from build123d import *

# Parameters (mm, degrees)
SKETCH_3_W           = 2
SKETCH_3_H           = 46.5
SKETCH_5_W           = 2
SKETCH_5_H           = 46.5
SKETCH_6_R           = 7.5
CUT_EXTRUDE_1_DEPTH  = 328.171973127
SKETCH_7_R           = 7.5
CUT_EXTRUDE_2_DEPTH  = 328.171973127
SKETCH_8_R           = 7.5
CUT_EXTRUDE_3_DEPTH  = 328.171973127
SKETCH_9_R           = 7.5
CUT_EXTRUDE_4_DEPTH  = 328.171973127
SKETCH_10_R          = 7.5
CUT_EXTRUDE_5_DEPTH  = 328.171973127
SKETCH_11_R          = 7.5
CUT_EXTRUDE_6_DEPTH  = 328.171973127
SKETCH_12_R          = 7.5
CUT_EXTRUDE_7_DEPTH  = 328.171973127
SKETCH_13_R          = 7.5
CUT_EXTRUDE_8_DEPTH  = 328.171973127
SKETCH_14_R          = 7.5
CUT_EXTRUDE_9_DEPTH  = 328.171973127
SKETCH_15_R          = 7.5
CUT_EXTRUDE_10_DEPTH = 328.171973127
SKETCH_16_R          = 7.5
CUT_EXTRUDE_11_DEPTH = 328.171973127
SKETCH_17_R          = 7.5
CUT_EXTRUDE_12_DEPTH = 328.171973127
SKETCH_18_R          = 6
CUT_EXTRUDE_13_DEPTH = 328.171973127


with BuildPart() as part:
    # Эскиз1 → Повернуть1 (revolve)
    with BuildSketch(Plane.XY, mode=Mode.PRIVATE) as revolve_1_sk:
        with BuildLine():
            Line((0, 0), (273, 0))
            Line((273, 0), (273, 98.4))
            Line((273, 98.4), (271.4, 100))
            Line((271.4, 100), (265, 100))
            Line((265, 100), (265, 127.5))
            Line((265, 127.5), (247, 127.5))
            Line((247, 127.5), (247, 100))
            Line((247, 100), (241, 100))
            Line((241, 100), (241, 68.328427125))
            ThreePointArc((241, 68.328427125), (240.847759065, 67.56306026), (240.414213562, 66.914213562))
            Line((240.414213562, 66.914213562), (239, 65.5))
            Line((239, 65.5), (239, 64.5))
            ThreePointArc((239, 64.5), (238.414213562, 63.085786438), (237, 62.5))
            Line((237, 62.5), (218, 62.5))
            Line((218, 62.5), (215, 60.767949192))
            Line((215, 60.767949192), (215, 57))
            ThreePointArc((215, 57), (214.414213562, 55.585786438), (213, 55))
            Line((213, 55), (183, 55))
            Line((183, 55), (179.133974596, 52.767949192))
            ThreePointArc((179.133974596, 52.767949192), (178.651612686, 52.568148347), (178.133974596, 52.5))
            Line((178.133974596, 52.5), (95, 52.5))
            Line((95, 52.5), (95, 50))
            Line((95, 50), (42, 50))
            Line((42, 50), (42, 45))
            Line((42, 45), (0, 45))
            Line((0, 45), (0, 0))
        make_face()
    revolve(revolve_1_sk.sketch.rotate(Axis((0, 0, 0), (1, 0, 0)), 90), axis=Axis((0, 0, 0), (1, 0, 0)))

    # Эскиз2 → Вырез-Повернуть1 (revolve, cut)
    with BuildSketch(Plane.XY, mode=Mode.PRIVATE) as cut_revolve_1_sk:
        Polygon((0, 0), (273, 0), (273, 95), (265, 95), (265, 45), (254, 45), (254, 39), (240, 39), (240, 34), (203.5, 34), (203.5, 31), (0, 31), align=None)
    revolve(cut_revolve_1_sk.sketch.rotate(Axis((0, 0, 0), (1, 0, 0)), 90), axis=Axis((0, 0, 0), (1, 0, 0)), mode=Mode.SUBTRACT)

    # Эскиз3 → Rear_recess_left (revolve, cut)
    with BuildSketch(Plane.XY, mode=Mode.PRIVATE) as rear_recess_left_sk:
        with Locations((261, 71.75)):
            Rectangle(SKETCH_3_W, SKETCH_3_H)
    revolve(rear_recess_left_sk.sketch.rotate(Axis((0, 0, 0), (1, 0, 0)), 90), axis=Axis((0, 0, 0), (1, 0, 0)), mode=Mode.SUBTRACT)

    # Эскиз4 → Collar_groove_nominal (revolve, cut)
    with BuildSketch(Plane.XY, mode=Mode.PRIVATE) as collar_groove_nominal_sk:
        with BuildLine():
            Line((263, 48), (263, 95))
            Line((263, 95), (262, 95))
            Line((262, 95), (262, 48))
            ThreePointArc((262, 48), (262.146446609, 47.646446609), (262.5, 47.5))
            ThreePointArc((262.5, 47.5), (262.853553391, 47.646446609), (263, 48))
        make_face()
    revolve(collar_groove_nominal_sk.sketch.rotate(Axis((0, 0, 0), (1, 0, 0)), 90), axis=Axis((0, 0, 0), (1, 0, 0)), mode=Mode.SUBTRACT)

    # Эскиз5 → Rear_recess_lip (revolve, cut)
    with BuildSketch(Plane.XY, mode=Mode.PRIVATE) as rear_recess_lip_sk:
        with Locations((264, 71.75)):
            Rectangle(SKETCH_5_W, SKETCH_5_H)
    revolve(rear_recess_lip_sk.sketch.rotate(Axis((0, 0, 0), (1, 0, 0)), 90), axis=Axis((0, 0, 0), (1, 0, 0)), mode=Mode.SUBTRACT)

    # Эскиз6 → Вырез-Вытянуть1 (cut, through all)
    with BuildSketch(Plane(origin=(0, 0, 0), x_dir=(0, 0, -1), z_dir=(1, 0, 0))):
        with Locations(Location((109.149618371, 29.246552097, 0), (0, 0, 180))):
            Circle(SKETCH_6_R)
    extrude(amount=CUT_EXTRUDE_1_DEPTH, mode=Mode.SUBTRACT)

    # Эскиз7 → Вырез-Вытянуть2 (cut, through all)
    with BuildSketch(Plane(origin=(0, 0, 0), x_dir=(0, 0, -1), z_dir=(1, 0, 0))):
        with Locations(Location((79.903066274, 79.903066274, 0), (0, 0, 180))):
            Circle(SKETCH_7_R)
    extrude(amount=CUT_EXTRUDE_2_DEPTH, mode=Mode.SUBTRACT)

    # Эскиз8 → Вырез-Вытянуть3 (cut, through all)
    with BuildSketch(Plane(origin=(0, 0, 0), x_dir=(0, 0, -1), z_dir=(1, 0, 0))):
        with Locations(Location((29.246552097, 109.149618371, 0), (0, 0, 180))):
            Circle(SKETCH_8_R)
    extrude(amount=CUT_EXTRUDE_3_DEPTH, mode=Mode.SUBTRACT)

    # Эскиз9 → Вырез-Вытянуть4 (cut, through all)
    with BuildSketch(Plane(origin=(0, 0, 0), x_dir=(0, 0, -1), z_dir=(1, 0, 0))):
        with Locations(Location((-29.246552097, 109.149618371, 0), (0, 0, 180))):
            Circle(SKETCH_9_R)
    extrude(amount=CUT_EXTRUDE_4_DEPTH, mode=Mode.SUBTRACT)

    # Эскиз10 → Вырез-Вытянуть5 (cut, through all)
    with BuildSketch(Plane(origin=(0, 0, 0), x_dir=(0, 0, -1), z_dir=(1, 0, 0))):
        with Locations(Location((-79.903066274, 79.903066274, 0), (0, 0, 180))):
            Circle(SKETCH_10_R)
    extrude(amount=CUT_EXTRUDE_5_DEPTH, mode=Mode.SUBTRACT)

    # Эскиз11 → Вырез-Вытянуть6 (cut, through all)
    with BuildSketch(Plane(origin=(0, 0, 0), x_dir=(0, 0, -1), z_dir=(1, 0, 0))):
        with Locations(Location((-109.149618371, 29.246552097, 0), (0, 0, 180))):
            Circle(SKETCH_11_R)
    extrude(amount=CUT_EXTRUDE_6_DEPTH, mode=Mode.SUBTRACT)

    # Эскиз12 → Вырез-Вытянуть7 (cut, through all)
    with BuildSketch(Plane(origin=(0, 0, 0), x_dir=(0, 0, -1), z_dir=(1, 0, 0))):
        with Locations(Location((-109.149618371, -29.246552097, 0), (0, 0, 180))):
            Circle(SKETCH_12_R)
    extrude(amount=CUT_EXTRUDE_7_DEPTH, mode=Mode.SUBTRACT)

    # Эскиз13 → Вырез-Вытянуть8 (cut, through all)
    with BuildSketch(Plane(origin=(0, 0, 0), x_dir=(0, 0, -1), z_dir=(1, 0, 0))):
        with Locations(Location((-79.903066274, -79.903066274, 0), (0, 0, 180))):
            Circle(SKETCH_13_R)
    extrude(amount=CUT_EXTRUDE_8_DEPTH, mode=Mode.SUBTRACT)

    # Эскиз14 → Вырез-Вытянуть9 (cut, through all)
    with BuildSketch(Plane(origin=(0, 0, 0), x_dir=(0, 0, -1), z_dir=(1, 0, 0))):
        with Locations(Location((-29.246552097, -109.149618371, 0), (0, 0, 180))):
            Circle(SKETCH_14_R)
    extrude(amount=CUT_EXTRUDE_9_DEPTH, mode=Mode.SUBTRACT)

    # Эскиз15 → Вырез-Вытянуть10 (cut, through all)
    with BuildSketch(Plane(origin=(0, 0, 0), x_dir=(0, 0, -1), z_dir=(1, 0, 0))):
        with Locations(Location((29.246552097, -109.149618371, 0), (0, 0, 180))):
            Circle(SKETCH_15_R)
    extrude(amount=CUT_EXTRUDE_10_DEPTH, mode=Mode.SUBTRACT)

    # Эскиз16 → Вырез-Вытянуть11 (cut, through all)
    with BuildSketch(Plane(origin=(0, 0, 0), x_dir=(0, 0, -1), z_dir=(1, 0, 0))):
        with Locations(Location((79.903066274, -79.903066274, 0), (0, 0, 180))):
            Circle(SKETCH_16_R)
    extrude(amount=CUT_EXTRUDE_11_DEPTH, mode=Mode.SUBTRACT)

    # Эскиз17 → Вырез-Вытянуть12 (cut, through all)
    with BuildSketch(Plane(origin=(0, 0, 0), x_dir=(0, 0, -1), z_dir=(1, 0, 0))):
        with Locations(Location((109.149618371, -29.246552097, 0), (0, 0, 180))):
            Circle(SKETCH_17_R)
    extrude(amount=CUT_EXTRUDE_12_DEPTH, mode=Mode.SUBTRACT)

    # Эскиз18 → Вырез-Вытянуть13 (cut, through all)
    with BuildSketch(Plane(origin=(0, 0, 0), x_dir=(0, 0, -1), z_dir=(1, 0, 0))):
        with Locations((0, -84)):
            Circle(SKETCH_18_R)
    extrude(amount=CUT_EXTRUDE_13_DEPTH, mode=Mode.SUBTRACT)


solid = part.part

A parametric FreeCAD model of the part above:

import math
import FreeCAD as App
import Part
import Sketcher

V = App.Vector
Q = App.Units.Quantity


def add_polygon(sketch, points):
    """Adds a closed chain of lines whose ends are joined by coincident constraints."""
    first, n = sketch.GeometryCount, len(points)
    for a, b in zip(points, points[1:] + points[:1]):
        sketch.addGeometry(Part.LineSegment(App.Vector(*a, 0), App.Vector(*b, 0)), False)
    for i in range(n):
        sketch.addConstraint(Sketcher.Constraint("Coincident", first + i, 2, first + (i + 1) % n, 1))

doc = App.newDocument("Part")
params = doc.addObject("Spreadsheet::Sheet", "Params")
for row, (alias, value) in enumerate([
    ("sketch1_radius", "2 mm"),
    ("sketch1_width", "273 mm"),
    ("sketch1_width2", "18 mm"),
    ("sketch1_width3", "6 mm"),
    ("sketch1_width4", "19 mm"),
    ("revolution_angle", "360 deg"),
    ("sketch2_width", "273 mm"),
    ("sketch2_width2", "8 mm"),
    ("sketch2_width3", "11 mm"),
    ("sketch2_width4", "14 mm"),
    ("sketch2_height", "95 mm"),
    ("groove_angle", "360 deg"),
    ("sketch3_width", "2 mm"),
    ("sketch3_height", "46.5 mm"),
    ("groove2_angle", "360 deg"),
    ("sketch4_radius", "0.5 mm"),
    ("sketch4_height", "47 mm"),
    ("groove3_angle", "360 deg"),
    ("sketch5_width", "2 mm"),
    ("sketch5_height", "46.5 mm"),
    ("groove4_angle", "360 deg"),
    ("sketch6_diameter", "15 mm"),
    ("sketch7_diameter", "15 mm"),
    ("sketch8_diameter", "15 mm"),
    ("sketch9_diameter", "15 mm"),
    ("sketch10_diameter", "15 mm"),
    ("sketch11_diameter", "15 mm"),
    ("sketch12_diameter", "15 mm"),
    ("sketch13_diameter", "15 mm"),
    ("sketch14_diameter", "15 mm"),
    ("sketch15_diameter", "15 mm"),
    ("sketch16_diameter", "15 mm"),
    ("sketch17_diameter", "15 mm"),
    ("sketch18_diameter", "12 mm"),
], start=1):
    params.set(f"A{row}", alias)
    params.set(f"B{row}", "=" + value)
    params.setAlias(f"B{row}", alias)

body = doc.addObject("PartDesign::Body", "Body")

# Sketch on XY plane
sketch1 = body.newObject("Sketcher::SketchObject", "Sketch")
sketch1.AttachmentSupport = (doc.getObject("XY_Plane"), [""])
sketch1.MapMode = "FlatFace"
sketch1.addGeometry(Part.LineSegment(V(0, 0, 0), V(273, 0, 0)), False)
sketch1.addGeometry(Part.LineSegment(V(273, 0, 0), V(273, 98.4, 0)), False)
sketch1.addGeometry(Part.LineSegment(V(273, 98.4, 0), V(271.4, 100, 0)), False)
sketch1.addGeometry(Part.LineSegment(V(271.4, 100, 0), V(265, 100, 0)), False)
sketch1.addGeometry(Part.LineSegment(V(265, 100, 0), V(265, 127.5, 0)), False)
sketch1.addGeometry(Part.LineSegment(V(265, 127.5, 0), V(247, 127.5, 0)), False)
sketch1.addGeometry(Part.LineSegment(V(247, 127.5, 0), V(247, 100, 0)), False)
sketch1.addGeometry(Part.LineSegment(V(247, 100, 0), V(241, 100, 0)), False)
sketch1.addGeometry(Part.LineSegment(V(241, 100, 0), V(241, 68.3, 0)), False)
sketch1.addGeometry(Part.ArcOfCircle(Part.Circle(V(239, 68.3, 0), V(0, 0, 1), 2), math.radians(-45), math.radians(0)), False)
sketch1.addGeometry(Part.LineSegment(V(240.4, 66.9, 0), V(239, 65.5, 0)), False)
sketch1.addGeometry(Part.LineSegment(V(239, 65.5, 0), V(239, 64.5, 0)), False)
sketch1.addGeometry(Part.ArcOfCircle(Part.Circle(V(237, 64.5, 0), V(0, 0, 1), 2), math.radians(-90), math.radians(0)), False)
sketch1.addGeometry(Part.LineSegment(V(237, 62.5, 0), V(218, 62.5, 0)), False)
sketch1.addGeometry(Part.LineSegment(V(218, 62.5, 0), V(215, 60.8, 0)), False)
sketch1.addGeometry(Part.LineSegment(V(215, 60.8, 0), V(215, 57, 0)), False)
sketch1.addGeometry(Part.ArcOfCircle(Part.Circle(V(213, 57, 0), V(0, 0, 1), 2), math.radians(-90), math.radians(0)), False)
sketch1.addGeometry(Part.LineSegment(V(213, 55, 0), V(183, 55, 0)), False)
sketch1.addGeometry(Part.LineSegment(V(183, 55, 0), V(179.1, 52.8, 0)), False)
sketch1.addGeometry(Part.ArcOfCircle(Part.Circle(V(178.1, 54.5, 0), V(0, 0, 1), 2), math.radians(-90), math.radians(-60)), False)
sketch1.addGeometry(Part.LineSegment(V(178.1, 52.5, 0), V(95, 52.5, 0)), False)
sketch1.addGeometry(Part.LineSegment(V(95, 52.5, 0), V(95, 50, 0)), False)
sketch1.addGeometry(Part.LineSegment(V(95, 50, 0), V(42, 50, 0)), False)
sketch1.addGeometry(Part.LineSegment(V(42, 50, 0), V(42, 45, 0)), False)
sketch1.addGeometry(Part.LineSegment(V(42, 45, 0), V(0, 45, 0)), False)
sketch1.addGeometry(Part.LineSegment(V(0, 45, 0), V(0, 0, 0)), False)
sketch1.addConstraint(Sketcher.Constraint("Coincident", 0, 2, 1, 1))
sketch1.addConstraint(Sketcher.Constraint("Coincident", 1, 2, 2, 1))
sketch1.addConstraint(Sketcher.Constraint("Coincident", 2, 2, 3, 1))
sketch1.addConstraint(Sketcher.Constraint("Coincident", 3, 2, 4, 1))
sketch1.addConstraint(Sketcher.Constraint("Coincident", 4, 2, 5, 1))
sketch1.addConstraint(Sketcher.Constraint("Coincident", 5, 2, 6, 1))
sketch1.addConstraint(Sketcher.Constraint("Coincident", 6, 2, 7, 1))
sketch1.addConstraint(Sketcher.Constraint("Coincident", 7, 2, 8, 1))
sketch1.addConstraint(Sketcher.Constraint("Tangent", 8, 2, 9, 2))
sketch1.addConstraint(Sketcher.Constraint("Tangent", 9, 1, 10, 1))
sketch1.addConstraint(Sketcher.Constraint("Coincident", 10, 2, 11, 1))
sketch1.addConstraint(Sketcher.Constraint("Tangent", 11, 2, 12, 2))
sketch1.addConstraint(Sketcher.Constraint("Tangent", 12, 1, 13, 1))
sketch1.addConstraint(Sketcher.Constraint("Coincident", 13, 2, 14, 1))
sketch1.addConstraint(Sketcher.Constraint("Coincident", 14, 2, 15, 1))
sketch1.addConstraint(Sketcher.Constraint("Tangent", 15, 2, 16, 2))
sketch1.addConstraint(Sketcher.Constraint("Tangent", 16, 1, 17, 1))
sketch1.addConstraint(Sketcher.Constraint("Coincident", 17, 2, 18, 1))
sketch1.addConstraint(Sketcher.Constraint("Tangent", 18, 2, 19, 2))
sketch1.addConstraint(Sketcher.Constraint("Tangent", 19, 1, 20, 1))
sketch1.addConstraint(Sketcher.Constraint("Coincident", 20, 2, 21, 1))
sketch1.addConstraint(Sketcher.Constraint("Coincident", 21, 2, 22, 1))
sketch1.addConstraint(Sketcher.Constraint("Coincident", 22, 2, 23, 1))
sketch1.addConstraint(Sketcher.Constraint("Coincident", 23, 2, 24, 1))
sketch1.addConstraint(Sketcher.Constraint("Coincident", 24, 2, 25, 1))
sketch1.addConstraint(Sketcher.Constraint("Coincident", 25, 2, 0, 1))
sketch1.addConstraint(Sketcher.Constraint("Horizontal", 0))
sketch1.addConstraint(Sketcher.Constraint("Vertical", 1))
sketch1.addConstraint(Sketcher.Constraint("Horizontal", 3))
sketch1.addConstraint(Sketcher.Constraint("Vertical", 4))
sketch1.addConstraint(Sketcher.Constraint("Horizontal", 5))
sketch1.addConstraint(Sketcher.Constraint("Vertical", 6))
sketch1.addConstraint(Sketcher.Constraint("Horizontal", 7))
sketch1.addConstraint(Sketcher.Constraint("Vertical", 8))
sketch1.addConstraint(Sketcher.Constraint("Vertical", 11))
sketch1.addConstraint(Sketcher.Constraint("Horizontal", 13))
sketch1.addConstraint(Sketcher.Constraint("Vertical", 15))
sketch1.addConstraint(Sketcher.Constraint("Horizontal", 17))
sketch1.addConstraint(Sketcher.Constraint("Horizontal", 20))
sketch1.addConstraint(Sketcher.Constraint("Vertical", 21))
sketch1.addConstraint(Sketcher.Constraint("Horizontal", 22))
sketch1.addConstraint(Sketcher.Constraint("Vertical", 23))
sketch1.addConstraint(Sketcher.Constraint("Horizontal", 24))
sketch1.addConstraint(Sketcher.Constraint("Vertical", 25))
sketch1.addConstraint(Sketcher.Constraint("Coincident", 25, 2, -1, 1))
sketch1.addConstraint(Sketcher.Constraint("Equal", 9, 12))
sketch1.addConstraint(Sketcher.Constraint("Equal", 12, 16))
sketch1.addConstraint(Sketcher.Constraint("Equal", 16, 19))
sketch1.addConstraint(Sketcher.Constraint("Perpendicular", 2, 10))
sketch1.addConstraint(Sketcher.Constraint("Parallel", 14, 18))
sketch1.addConstraint(Sketcher.Constraint("Horizontal", 3, 2, 6, 2))
sketch1.addConstraint(Sketcher.Constraint("Vertical", 9, 3, 10, 2))
sketch1.addConstraint(Sketcher.Constraint("Radius", 9, Q("2 mm")))
sketch1.addConstraint(Sketcher.Constraint("DistanceX", 0, 1, 0, 2, Q("273 mm")))
sketch1.addConstraint(Sketcher.Constraint("DistanceX", 5, 2, 5, 1, Q("18 mm")))
sketch1.addConstraint(Sketcher.Constraint("DistanceX", 7, 2, 7, 1, Q("6 mm")))
sketch1.addConstraint(Sketcher.Constraint("DistanceX", 13, 2, 13, 1, Q("19 mm")))
sketch1.addConstraint(Sketcher.Constraint("DistanceX", 17, 2, 17, 1, Q("30 mm")))
sketch1.addConstraint(Sketcher.Constraint("DistanceX", 22, 2, 22, 1, Q("53 mm")))
sketch1.addConstraint(Sketcher.Constraint("DistanceX", 24, 2, 24, 1, Q("42 mm")))
sketch1.addConstraint(Sketcher.Constraint("DistanceY", 11, 2, 11, 1, Q("1 mm")))
sketch1.addConstraint(Sketcher.Constraint("DistanceY", 23, 2, 23, 1, Q("5 mm")))
sketch1.addConstraint(Sketcher.Constraint("DistanceY", 25, 2, 25, 1, Q("45 mm")))
sketch1.addConstraint(Sketcher.Constraint("Angle", 2, Q("135 deg")))
sketch1.addConstraint(Sketcher.Constraint("Angle", 14, Q("-150 deg")))
sketch1.addConstraint(Sketcher.Constraint("DistanceX", 3, 2, 3, 1, Q("6.4 mm")))
sketch1.addConstraint(Sketcher.Constraint("DistanceY", 1, 1, 1, 2, Q("98.4 mm")))
sketch1.addConstraint(Sketcher.Constraint("DistanceY", 4, 1, 4, 2, Q("27.5 mm")))
sketch1.addConstraint(Sketcher.Constraint("DistanceY", 21, 2, 21, 1, Q("2.5 mm")))
sketch1.addConstraint(Sketcher.Constraint("DistanceX", -1, 1, 9, 3, Q("239 mm")))
sketch1.addConstraint(Sketcher.Constraint("DistanceX", -1, 1, 16, 3, Q("213 mm")))
sketch1.addConstraint(Sketcher.Constraint("DistanceY", -1, 1, 16, 3, Q("57 mm")))
sketch1.addConstraint(Sketcher.Constraint("DistanceY", 19, 3, 12, 3, Q("10 mm")))
sketch1.setExpression("Constraints[52]", "Params.sketch1_radius")
sketch1.setExpression("Constraints[53]", "Params.sketch1_width")
sketch1.setExpression("Constraints[54]", "Params.sketch1_width2")
sketch1.setExpression("Constraints[55]", "Params.sketch1_width3")
sketch1.setExpression("Constraints[56]", "Params.sketch1_width4")
revolution = body.newObject("PartDesign::Revolution", "Revolution")
revolution.Profile = sketch1
revolution.ReferenceAxis = (sketch1, ["H_Axis"])
revolution.setExpression("Angle", "Params.revolution_angle")

# Sketch on XY plane
sketch2 = body.newObject("Sketcher::SketchObject", "Sketch001")
sketch2.AttachmentSupport = (doc.getObject("XY_Plane"), [""])
sketch2.MapMode = "FlatFace"
add_polygon(sketch2, [(0, 0), (273, 0), (273, 95), (265, 95), (265, 45), (254, 45), (254, 39), (240, 39), (240, 34), (203.5, 34), (203.5, 31), (0, 31)])  # lines 0-11
sketch2.addConstraint(Sketcher.Constraint("Horizontal", 0))
sketch2.addConstraint(Sketcher.Constraint("Vertical", 1))
sketch2.addConstraint(Sketcher.Constraint("Horizontal", 2))
sketch2.addConstraint(Sketcher.Constraint("Vertical", 3))
sketch2.addConstraint(Sketcher.Constraint("Horizontal", 4))
sketch2.addConstraint(Sketcher.Constraint("Vertical", 5))
sketch2.addConstraint(Sketcher.Constraint("Horizontal", 6))
sketch2.addConstraint(Sketcher.Constraint("Vertical", 7))
sketch2.addConstraint(Sketcher.Constraint("Horizontal", 8))
sketch2.addConstraint(Sketcher.Constraint("Vertical", 9))
sketch2.addConstraint(Sketcher.Constraint("Horizontal", 10))
sketch2.addConstraint(Sketcher.Constraint("Vertical", 11))
sketch2.addConstraint(Sketcher.Constraint("Coincident", 11, 2, -1, 1))
sketch2.addConstraint(Sketcher.Constraint("DistanceX", 0, 1, 0, 2, Q("273 mm")))
sketch2.addConstraint(Sketcher.Constraint("DistanceX", 2, 2, 2, 1, Q("8 mm")))
sketch2.addConstraint(Sketcher.Constraint("DistanceX", 4, 2, 4, 1, Q("11 mm")))
sketch2.addConstraint(Sketcher.Constraint("DistanceX", 6, 2, 6, 1, Q("14 mm")))
sketch2.addConstraint(Sketcher.Constraint("DistanceY", 1, 1, 1, 2, Q("95 mm")))
sketch2.addConstraint(Sketcher.Constraint("DistanceY", 3, 2, 3, 1, Q("50 mm")))
sketch2.addConstraint(Sketcher.Constraint("DistanceY", 5, 2, 5, 1, Q("6 mm")))
sketch2.addConstraint(Sketcher.Constraint("DistanceY", 7, 2, 7, 1, Q("5 mm")))
sketch2.addConstraint(Sketcher.Constraint("DistanceY", 9, 2, 9, 1, Q("3 mm")))
sketch2.addConstraint(Sketcher.Constraint("DistanceX", 8, 2, 8, 1, Q("36.5 mm")))
sketch2.setExpression("Constraints[25]", "Params.sketch2_width")
sketch2.setExpression("Constraints[26]", "Params.sketch2_width2")
sketch2.setExpression("Constraints[27]", "Params.sketch2_width3")
sketch2.setExpression("Constraints[28]", "Params.sketch2_width4")
sketch2.setExpression("Constraints[29]", "Params.sketch2_height")
groove = body.newObject("PartDesign::Groove", "Groove")
groove.Profile = sketch2
groove.ReferenceAxis = (sketch2, ["H_Axis"])
groove.setExpression("Angle", "Params.groove_angle")

# Sketch on XY plane
sketch3 = body.newObject("Sketcher::SketchObject", "Sketch002")
sketch3.AttachmentSupport = (doc.getObject("XY_Plane"), [""])
sketch3.MapMode = "FlatFace"
add_polygon(sketch3, [(260, 95), (260, 48.5), (262, 48.5), (262, 95)])  # lines 0-3
sketch3.addConstraint(Sketcher.Constraint("Vertical", 0))
sketch3.addConstraint(Sketcher.Constraint("Horizontal", 1))
sketch3.addConstraint(Sketcher.Constraint("Vertical", 2))
sketch3.addConstraint(Sketcher.Constraint("Horizontal", 3))
sketch3.addConstraint(Sketcher.Constraint("DistanceX", 1, 1, 1, 2, Q("2 mm")))
sketch3.addConstraint(Sketcher.Constraint("DistanceY", 0, 2, 0, 1, Q("46.5 mm")))
sketch3.addConstraint(Sketcher.Constraint("DistanceX", -1, 1, 0, 2, Q("260 mm")))
sketch3.addConstraint(Sketcher.Constraint("DistanceY", -1, 1, 2, 2, Q("95 mm")))
sketch3.setExpression("Constraints[8]", "Params.sketch3_width")
sketch3.setExpression("Constraints[9]", "Params.sketch3_height")
groove2 = body.newObject("PartDesign::Groove", "Groove001")
groove2.Profile = sketch3
groove2.ReferenceAxis = (sketch3, ["H_Axis"])
groove2.setExpression("Angle", "Params.groove2_angle")

# Sketch on XY plane
sketch4 = body.newObject("Sketcher::SketchObject", "Sketch003")
sketch4.AttachmentSupport = (doc.getObject("XY_Plane"), [""])
sketch4.MapMode = "FlatFace"
sketch4.addGeometry(Part.LineSegment(V(263, 48, 0), V(263, 95, 0)), False)
sketch4.addGeometry(Part.LineSegment(V(263, 95, 0), V(262, 95, 0)), False)
sketch4.addGeometry(Part.LineSegment(V(262, 95, 0), V(262, 48, 0)), False)
sketch4.addGeometry(Part.ArcOfCircle(Part.Circle(V(262.5, 48, 0), V(0, 0, 1), 0.5), math.radians(180), math.radians(270)), False)
sketch4.addGeometry(Part.ArcOfCircle(Part.Circle(V(262.5, 48, 0), V(0, 0, 1), 0.5), math.radians(-90), math.radians(0)), False)
sketch4.addConstraint(Sketcher.Constraint("Coincident", 0, 2, 1, 1))
sketch4.addConstraint(Sketcher.Constraint("Coincident", 1, 2, 2, 1))
sketch4.addConstraint(Sketcher.Constraint("Tangent", 2, 2, 3, 1))
sketch4.addConstraint(Sketcher.Constraint("Tangent", 3, 2, 4, 1))
sketch4.addConstraint(Sketcher.Constraint("Tangent", 4, 2, 0, 1))
sketch4.addConstraint(Sketcher.Constraint("Vertical", 0))
sketch4.addConstraint(Sketcher.Constraint("Horizontal", 1))
sketch4.addConstraint(Sketcher.Constraint("Vertical", 2))
sketch4.addConstraint(Sketcher.Constraint("Equal", 3, 4))
sketch4.addConstraint(Sketcher.Constraint("Vertical", 4, 3, 3, 2))
sketch4.addConstraint(Sketcher.Constraint("Radius", 3, Q("0.5 mm")))
sketch4.addConstraint(Sketcher.Constraint("DistanceY", 0, 1, 0, 2, Q("47 mm")))
sketch4.addConstraint(Sketcher.Constraint("DistanceY", -1, 1, 3, 3, Q("48 mm")))
sketch4.addConstraint(Sketcher.Constraint("DistanceX", -1, 1, 0, 2, Q("263 mm")))
sketch4.setExpression("Constraints[10]", "Params.sketch4_radius")
sketch4.setExpression("Constraints[11]", "Params.sketch4_height")
groove3 = body.newObject("PartDesign::Groove", "Groove002")
groove3.Profile = sketch4
groove3.ReferenceAxis = (sketch4, ["H_Axis"])
groove3.setExpression("Angle", "Params.groove3_angle")

# Sketch on XY plane
sketch5 = body.newObject("Sketcher::SketchObject", "Sketch004")
sketch5.AttachmentSupport = (doc.getObject("XY_Plane"), [""])
sketch5.MapMode = "FlatFace"
add_polygon(sketch5, [(263, 95), (263, 48.5), (265, 48.5), (265, 95)])  # lines 0-3
sketch5.addConstraint(Sketcher.Constraint("Vertical", 0))
sketch5.addConstraint(Sketcher.Constraint("Horizontal", 1))
sketch5.addConstraint(Sketcher.Constraint("Vertical", 2))
sketch5.addConstraint(Sketcher.Constraint("Horizontal", 3))
sketch5.addConstraint(Sketcher.Constraint("DistanceX", 1, 1, 1, 2, Q("2 mm")))
sketch5.addConstraint(Sketcher.Constraint("DistanceY", 0, 2, 0, 1, Q("46.5 mm")))
sketch5.addConstraint(Sketcher.Constraint("DistanceX", -1, 1, 0, 2, Q("263 mm")))
sketch5.addConstraint(Sketcher.Constraint("DistanceY", -1, 1, 2, 2, Q("95 mm")))
sketch5.setExpression("Constraints[8]", "Params.sketch5_width")
sketch5.setExpression("Constraints[9]", "Params.sketch5_height")
groove4 = body.newObject("PartDesign::Groove", "Groove003")
groove4.Profile = sketch5
groove4.ReferenceAxis = (sketch5, ["H_Axis"])
groove4.setExpression("Angle", "Params.groove4_angle")

# Sketch on YZ plane
sketch6 = body.newObject("Sketcher::SketchObject", "Sketch005")
sketch6.AttachmentSupport = (doc.getObject("YZ_Plane"), [""])
sketch6.MapMode = "FlatFace"
sketch6.addGeometry(Part.Circle(V(29, -109, 0), V(0, 0, 1), 8), False)
sketch6.addConstraint(Sketcher.Constraint("Diameter", 0, Q("15 mm")))
sketch6.addConstraint(Sketcher.Constraint("DistanceY", 0, 3, -1, 1, Q("109.149618 mm")))
sketch6.addConstraint(Sketcher.Constraint("DistanceX", -1, 1, 0, 3, Q("29.246552 mm")))
sketch6.setExpression("Constraints[0]", "Params.sketch6_diameter")
pocket1 = body.newObject("PartDesign::Pocket", "Pocket")
pocket1.Profile = sketch6
pocket1.Type = "ThroughAll"
pocket1.Reversed = True

# Sketch on YZ plane
sketch7 = body.newObject("Sketcher::SketchObject", "Sketch006")
sketch7.AttachmentSupport = (doc.getObject("YZ_Plane"), [""])
sketch7.MapMode = "FlatFace"
sketch7.addGeometry(Part.Circle(V(80, -80, 0), V(0, 0, 1), 8), False)
sketch7.addConstraint(Sketcher.Constraint("Diameter", 0, Q("15 mm")))
sketch7.addConstraint(Sketcher.Constraint("DistanceX", -1, 1, 0, 3, Q("79.903066 mm")))
sketch7.addConstraint(Sketcher.Constraint("DistanceY", 0, 3, -1, 1, Q("79.903066 mm")))
sketch7.setExpression("Constraints[0]", "Params.sketch7_diameter")
pocket2 = body.newObject("PartDesign::Pocket", "Pocket001")
pocket2.Profile = sketch7
pocket2.Type = "ThroughAll"
pocket2.Reversed = True

# Sketch on YZ plane
sketch8 = body.newObject("Sketcher::SketchObject", "Sketch007")
sketch8.AttachmentSupport = (doc.getObject("YZ_Plane"), [""])
sketch8.MapMode = "FlatFace"
sketch8.addGeometry(Part.Circle(V(109, -29, 0), V(0, 0, 1), 8), False)
sketch8.addConstraint(Sketcher.Constraint("Diameter", 0, Q("15 mm")))
sketch8.addConstraint(Sketcher.Constraint("DistanceX", -1, 1, 0, 3, Q("109.149618 mm")))
sketch8.addConstraint(Sketcher.Constraint("DistanceY", 0, 3, -1, 1, Q("29.246552 mm")))
sketch8.setExpression("Constraints[0]", "Params.sketch8_diameter")
pocket3 = body.newObject("PartDesign::Pocket", "Pocket002")
pocket3.Profile = sketch8
pocket3.Type = "ThroughAll"
pocket3.Reversed = True

# Sketch on YZ plane
sketch9 = body.newObject("Sketcher::SketchObject", "Sketch008")
sketch9.AttachmentSupport = (doc.getObject("YZ_Plane"), [""])
sketch9.MapMode = "FlatFace"
sketch9.addGeometry(Part.Circle(V(109, 29, 0), V(0, 0, 1), 8), False)
sketch9.addConstraint(Sketcher.Constraint("Diameter", 0, Q("15 mm")))
sketch9.addConstraint(Sketcher.Constraint("DistanceX", -1, 1, 0, 3, Q("109.149618 mm")))
sketch9.addConstraint(Sketcher.Constraint("DistanceY", -1, 1, 0, 3, Q("29.246552 mm")))
sketch9.setExpression("Constraints[0]", "Params.sketch9_diameter")
pocket4 = body.newObject("PartDesign::Pocket", "Pocket003")
pocket4.Profile = sketch9
pocket4.Type = "ThroughAll"
pocket4.Reversed = True

# Sketch on YZ plane
sketch10 = body.newObject("Sketcher::SketchObject", "Sketch009")
sketch10.AttachmentSupport = (doc.getObject("YZ_Plane"), [""])
sketch10.MapMode = "FlatFace"
sketch10.addGeometry(Part.Circle(V(80, 80, 0), V(0, 0, 1), 8), False)
sketch10.addConstraint(Sketcher.Constraint("Diameter", 0, Q("15 mm")))
sketch10.addConstraint(Sketcher.Constraint("DistanceX", -1, 1, 0, 3, Q("79.903066 mm")))
sketch10.addConstraint(Sketcher.Constraint("DistanceY", -1, 1, 0, 3, Q("79.903066 mm")))
sketch10.setExpression("Constraints[0]", "Params.sketch10_diameter")
pocket5 = body.newObject("PartDesign::Pocket", "Pocket004")
pocket5.Profile = sketch10
pocket5.Type = "ThroughAll"
pocket5.Reversed = True

# Sketch on YZ plane
sketch11 = body.newObject("Sketcher::SketchObject", "Sketch010")
sketch11.AttachmentSupport = (doc.getObject("YZ_Plane"), [""])
sketch11.MapMode = "FlatFace"
sketch11.addGeometry(Part.Circle(V(29, 109, 0), V(0, 0, 1), 8), False)
sketch11.addConstraint(Sketcher.Constraint("Diameter", 0, Q("15 mm")))
sketch11.addConstraint(Sketcher.Constraint("DistanceY", -1, 1, 0, 3, Q("109.149618 mm")))
sketch11.addConstraint(Sketcher.Constraint("DistanceX", -1, 1, 0, 3, Q("29.246552 mm")))
sketch11.setExpression("Constraints[0]", "Params.sketch11_diameter")
pocket6 = body.newObject("PartDesign::Pocket", "Pocket005")
pocket6.Profile = sketch11
pocket6.Type = "ThroughAll"
pocket6.Reversed = True

# Sketch on YZ plane
sketch12 = body.newObject("Sketcher::SketchObject", "Sketch011")
sketch12.AttachmentSupport = (doc.getObject("YZ_Plane"), [""])
sketch12.MapMode = "FlatFace"
sketch12.addGeometry(Part.Circle(V(-29, 109, 0), V(0, 0, 1), 8), False)
sketch12.addConstraint(Sketcher.Constraint("Diameter", 0, Q("15 mm")))
sketch12.addConstraint(Sketcher.Constraint("DistanceY", -1, 1, 0, 3, Q("109.149618 mm")))
sketch12.addConstraint(Sketcher.Constraint("DistanceX", 0, 3, -1, 1, Q("29.246552 mm")))
sketch12.setExpression("Constraints[0]", "Params.sketch12_diameter")
pocket7 = body.newObject("PartDesign::Pocket", "Pocket006")
pocket7.Profile = sketch12
pocket7.Type = "ThroughAll"
pocket7.Reversed = True

# Sketch on YZ plane
sketch13 = body.newObject("Sketcher::SketchObject", "Sketch012")
sketch13.AttachmentSupport = (doc.getObject("YZ_Plane"), [""])
sketch13.MapMode = "FlatFace"
sketch13.addGeometry(Part.Circle(V(-80, 80, 0), V(0, 0, 1), 8), False)
sketch13.addConstraint(Sketcher.Constraint("Diameter", 0, Q("15 mm")))
sketch13.addConstraint(Sketcher.Constraint("DistanceX", 0, 3, -1, 1, Q("79.903066 mm")))
sketch13.addConstraint(Sketcher.Constraint("DistanceY", -1, 1, 0, 3, Q("79.903066 mm")))
sketch13.setExpression("Constraints[0]", "Params.sketch13_diameter")
pocket8 = body.newObject("PartDesign::Pocket", "Pocket007")
pocket8.Profile = sketch13
pocket8.Type = "ThroughAll"
pocket8.Reversed = True

# Sketch on YZ plane
sketch14 = body.newObject("Sketcher::SketchObject", "Sketch013")
sketch14.AttachmentSupport = (doc.getObject("YZ_Plane"), [""])
sketch14.MapMode = "FlatFace"
sketch14.addGeometry(Part.Circle(V(-109, 29, 0), V(0, 0, 1), 8), False)
sketch14.addConstraint(Sketcher.Constraint("Diameter", 0, Q("15 mm")))
sketch14.addConstraint(Sketcher.Constraint("DistanceX", 0, 3, -1, 1, Q("109.149618 mm")))
sketch14.addConstraint(Sketcher.Constraint("DistanceY", -1, 1, 0, 3, Q("29.246552 mm")))
sketch14.setExpression("Constraints[0]", "Params.sketch14_diameter")
pocket9 = body.newObject("PartDesign::Pocket", "Pocket008")
pocket9.Profile = sketch14
pocket9.Type = "ThroughAll"
pocket9.Reversed = True

# Sketch on YZ plane
sketch15 = body.newObject("Sketcher::SketchObject", "Sketch014")
sketch15.AttachmentSupport = (doc.getObject("YZ_Plane"), [""])
sketch15.MapMode = "FlatFace"
sketch15.addGeometry(Part.Circle(V(-109, -29, 0), V(0, 0, 1), 8), False)
sketch15.addConstraint(Sketcher.Constraint("Diameter", 0, Q("15 mm")))
sketch15.addConstraint(Sketcher.Constraint("DistanceX", 0, 3, -1, 1, Q("109.149618 mm")))
sketch15.addConstraint(Sketcher.Constraint("DistanceY", 0, 3, -1, 1, Q("29.246552 mm")))
sketch15.setExpression("Constraints[0]", "Params.sketch15_diameter")
pocket10 = body.newObject("PartDesign::Pocket", "Pocket009")
pocket10.Profile = sketch15
pocket10.Type = "ThroughAll"
pocket10.Reversed = True

# Sketch on YZ plane
sketch16 = body.newObject("Sketcher::SketchObject", "Sketch015")
sketch16.AttachmentSupport = (doc.getObject("YZ_Plane"), [""])
sketch16.MapMode = "FlatFace"
sketch16.addGeometry(Part.Circle(V(-80, -80, 0), V(0, 0, 1), 8), False)
sketch16.addConstraint(Sketcher.Constraint("Diameter", 0, Q("15 mm")))
sketch16.addConstraint(Sketcher.Constraint("DistanceX", 0, 3, -1, 1, Q("79.903066 mm")))
sketch16.addConstraint(Sketcher.Constraint("DistanceY", 0, 3, -1, 1, Q("79.903066 mm")))
sketch16.setExpression("Constraints[0]", "Params.sketch16_diameter")
pocket11 = body.newObject("PartDesign::Pocket", "Pocket010")
pocket11.Profile = sketch16
pocket11.Type = "ThroughAll"
pocket11.Reversed = True

# Sketch on YZ plane
sketch17 = body.newObject("Sketcher::SketchObject", "Sketch016")
sketch17.AttachmentSupport = (doc.getObject("YZ_Plane"), [""])
sketch17.MapMode = "FlatFace"
sketch17.addGeometry(Part.Circle(V(-29, -109, 0), V(0, 0, 1), 8), False)
sketch17.addConstraint(Sketcher.Constraint("Diameter", 0, Q("15 mm")))
sketch17.addConstraint(Sketcher.Constraint("DistanceY", 0, 3, -1, 1, Q("109.149618 mm")))
sketch17.addConstraint(Sketcher.Constraint("DistanceX", 0, 3, -1, 1, Q("29.246552 mm")))
sketch17.setExpression("Constraints[0]", "Params.sketch17_diameter")
pocket12 = body.newObject("PartDesign::Pocket", "Pocket011")
pocket12.Profile = sketch17
pocket12.Type = "ThroughAll"
pocket12.Reversed = True

# Sketch on YZ plane
sketch18 = body.newObject("Sketcher::SketchObject", "Sketch017")
sketch18.AttachmentSupport = (doc.getObject("YZ_Plane"), [""])
sketch18.MapMode = "FlatFace"
sketch18.addGeometry(Part.Circle(V(-84, 0, 0), V(0, 0, 1), 6), False)
sketch18.addConstraint(Sketcher.Constraint("PointOnObject", 0, 3, -1))
sketch18.addConstraint(Sketcher.Constraint("Diameter", 0, Q("12 mm")))
sketch18.addConstraint(Sketcher.Constraint("DistanceX", 0, 3, -1, 1, Q("84 mm")))
sketch18.setExpression("Constraints[1]", "Params.sketch18_diameter")
pocket13 = body.newObject("PartDesign::Pocket", "Pocket012")
pocket13.Profile = sketch18
pocket13.Type = "ThroughAll"
pocket13.Reversed = True

doc.recompute()
